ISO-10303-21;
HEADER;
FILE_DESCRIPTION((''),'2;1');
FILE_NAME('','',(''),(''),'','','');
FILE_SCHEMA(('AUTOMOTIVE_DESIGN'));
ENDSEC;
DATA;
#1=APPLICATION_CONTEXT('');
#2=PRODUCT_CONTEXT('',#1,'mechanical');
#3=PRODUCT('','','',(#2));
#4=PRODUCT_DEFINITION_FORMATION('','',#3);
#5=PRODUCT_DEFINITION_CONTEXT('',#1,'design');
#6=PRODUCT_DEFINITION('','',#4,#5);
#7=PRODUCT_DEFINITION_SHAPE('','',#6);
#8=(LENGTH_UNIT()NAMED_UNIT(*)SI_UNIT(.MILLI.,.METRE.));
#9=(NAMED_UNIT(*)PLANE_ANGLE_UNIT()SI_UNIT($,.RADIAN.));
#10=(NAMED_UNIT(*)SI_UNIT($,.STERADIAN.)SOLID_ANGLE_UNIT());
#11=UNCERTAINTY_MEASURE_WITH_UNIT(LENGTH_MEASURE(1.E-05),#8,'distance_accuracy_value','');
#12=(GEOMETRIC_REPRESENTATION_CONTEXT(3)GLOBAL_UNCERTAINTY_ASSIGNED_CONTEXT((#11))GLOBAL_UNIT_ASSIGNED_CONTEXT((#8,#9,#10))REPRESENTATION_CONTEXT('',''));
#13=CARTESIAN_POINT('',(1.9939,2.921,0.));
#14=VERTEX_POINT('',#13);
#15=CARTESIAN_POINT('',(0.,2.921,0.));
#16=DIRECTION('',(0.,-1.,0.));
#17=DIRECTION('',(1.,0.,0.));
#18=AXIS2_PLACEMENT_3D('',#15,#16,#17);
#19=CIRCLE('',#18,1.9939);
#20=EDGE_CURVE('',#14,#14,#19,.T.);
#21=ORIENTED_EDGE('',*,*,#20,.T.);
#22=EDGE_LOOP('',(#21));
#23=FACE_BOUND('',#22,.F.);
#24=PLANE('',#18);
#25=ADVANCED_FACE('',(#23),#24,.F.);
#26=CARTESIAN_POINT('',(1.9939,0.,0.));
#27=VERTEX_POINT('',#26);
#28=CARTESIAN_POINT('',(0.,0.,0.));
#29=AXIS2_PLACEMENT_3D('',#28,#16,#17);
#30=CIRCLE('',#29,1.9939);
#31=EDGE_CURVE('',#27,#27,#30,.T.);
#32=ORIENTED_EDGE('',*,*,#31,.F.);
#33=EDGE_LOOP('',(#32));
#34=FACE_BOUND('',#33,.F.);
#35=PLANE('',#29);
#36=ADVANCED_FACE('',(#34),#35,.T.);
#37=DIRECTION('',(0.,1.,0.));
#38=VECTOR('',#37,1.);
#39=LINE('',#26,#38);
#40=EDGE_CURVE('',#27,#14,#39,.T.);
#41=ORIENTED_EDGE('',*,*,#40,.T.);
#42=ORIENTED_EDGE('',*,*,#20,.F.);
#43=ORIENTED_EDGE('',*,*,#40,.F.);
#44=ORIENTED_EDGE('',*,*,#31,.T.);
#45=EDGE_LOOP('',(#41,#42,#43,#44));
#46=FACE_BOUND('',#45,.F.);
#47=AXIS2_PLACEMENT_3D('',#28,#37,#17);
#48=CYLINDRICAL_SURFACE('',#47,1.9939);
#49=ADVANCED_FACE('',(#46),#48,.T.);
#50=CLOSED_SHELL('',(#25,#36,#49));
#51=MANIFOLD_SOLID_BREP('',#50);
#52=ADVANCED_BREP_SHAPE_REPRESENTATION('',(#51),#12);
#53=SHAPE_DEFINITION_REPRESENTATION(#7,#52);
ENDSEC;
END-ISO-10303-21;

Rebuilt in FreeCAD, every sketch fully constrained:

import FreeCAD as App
import Part
import Sketcher

V = App.Vector
Q = App.Units.Quantity

doc = App.newDocument("Part")
body = doc.addObject("PartDesign::Body", "Body")

sketch1 = doc.addObject("Sketcher::SketchObject", "Sketch")
body.addObject(sketch1)
sketch1.AttachmentSupport = (doc.XY_Plane, [""])
sketch1.MapMode = "FlatFace"
sketch1.addGeometry(Part.LineSegment(V(0, 2.9, 0), V(0, 0, 0)), False)
sketch1.addGeometry(Part.LineSegment(V(0, 0, 0), V(2, 0, 0)), False)
sketch1.addGeometry(Part.LineSegment(V(2, 0, 0), V(2, 2.9, 0)), False)
sketch1.addGeometry(Part.LineSegment(V(2, 2.9, 0), V(0, 2.9, 0)), False)
sketch1.addConstraint(Sketcher.Constraint("Coincident", 0, 2, 1, 1))
sketch1.addConstraint(Sketcher.Constraint("Coincident", 1, 2, 2, 1))
sketch1.addConstraint(Sketcher.Constraint("Coincident", 2, 2, 3, 1))
sketch1.addConstraint(Sketcher.Constraint("Coincident", 3, 2, 0, 1))
sketch1.addConstraint(Sketcher.Constraint("Vertical", 0))
sketch1.addConstraint(Sketcher.Constraint("Horizontal", 1))
sketch1.addConstraint(Sketcher.Constraint("Vertical", 2))
sketch1.addConstraint(Sketcher.Constraint("Horizontal", 3))
sketch1.addConstraint(Sketcher.Constraint("Coincident", 0, 2, -1, 1))
sketch1.addConstraint(Sketcher.Constraint("DistanceY", 0, 2, 0, 1, Q("0.115 in")))
sketch1.addConstraint(Sketcher.Constraint("DistanceX", 1, 1, 1, 2, Q("0.0785 in")))
revolution = doc.addObject("PartDesign::Revolution", "Revolution")
body.addObject(revolution)
revolution.Profile = sketch1
revolution.ReferenceAxis = (sketch1, ["V_Axis"])
revolution.Angle = 360

doc.recompute()
